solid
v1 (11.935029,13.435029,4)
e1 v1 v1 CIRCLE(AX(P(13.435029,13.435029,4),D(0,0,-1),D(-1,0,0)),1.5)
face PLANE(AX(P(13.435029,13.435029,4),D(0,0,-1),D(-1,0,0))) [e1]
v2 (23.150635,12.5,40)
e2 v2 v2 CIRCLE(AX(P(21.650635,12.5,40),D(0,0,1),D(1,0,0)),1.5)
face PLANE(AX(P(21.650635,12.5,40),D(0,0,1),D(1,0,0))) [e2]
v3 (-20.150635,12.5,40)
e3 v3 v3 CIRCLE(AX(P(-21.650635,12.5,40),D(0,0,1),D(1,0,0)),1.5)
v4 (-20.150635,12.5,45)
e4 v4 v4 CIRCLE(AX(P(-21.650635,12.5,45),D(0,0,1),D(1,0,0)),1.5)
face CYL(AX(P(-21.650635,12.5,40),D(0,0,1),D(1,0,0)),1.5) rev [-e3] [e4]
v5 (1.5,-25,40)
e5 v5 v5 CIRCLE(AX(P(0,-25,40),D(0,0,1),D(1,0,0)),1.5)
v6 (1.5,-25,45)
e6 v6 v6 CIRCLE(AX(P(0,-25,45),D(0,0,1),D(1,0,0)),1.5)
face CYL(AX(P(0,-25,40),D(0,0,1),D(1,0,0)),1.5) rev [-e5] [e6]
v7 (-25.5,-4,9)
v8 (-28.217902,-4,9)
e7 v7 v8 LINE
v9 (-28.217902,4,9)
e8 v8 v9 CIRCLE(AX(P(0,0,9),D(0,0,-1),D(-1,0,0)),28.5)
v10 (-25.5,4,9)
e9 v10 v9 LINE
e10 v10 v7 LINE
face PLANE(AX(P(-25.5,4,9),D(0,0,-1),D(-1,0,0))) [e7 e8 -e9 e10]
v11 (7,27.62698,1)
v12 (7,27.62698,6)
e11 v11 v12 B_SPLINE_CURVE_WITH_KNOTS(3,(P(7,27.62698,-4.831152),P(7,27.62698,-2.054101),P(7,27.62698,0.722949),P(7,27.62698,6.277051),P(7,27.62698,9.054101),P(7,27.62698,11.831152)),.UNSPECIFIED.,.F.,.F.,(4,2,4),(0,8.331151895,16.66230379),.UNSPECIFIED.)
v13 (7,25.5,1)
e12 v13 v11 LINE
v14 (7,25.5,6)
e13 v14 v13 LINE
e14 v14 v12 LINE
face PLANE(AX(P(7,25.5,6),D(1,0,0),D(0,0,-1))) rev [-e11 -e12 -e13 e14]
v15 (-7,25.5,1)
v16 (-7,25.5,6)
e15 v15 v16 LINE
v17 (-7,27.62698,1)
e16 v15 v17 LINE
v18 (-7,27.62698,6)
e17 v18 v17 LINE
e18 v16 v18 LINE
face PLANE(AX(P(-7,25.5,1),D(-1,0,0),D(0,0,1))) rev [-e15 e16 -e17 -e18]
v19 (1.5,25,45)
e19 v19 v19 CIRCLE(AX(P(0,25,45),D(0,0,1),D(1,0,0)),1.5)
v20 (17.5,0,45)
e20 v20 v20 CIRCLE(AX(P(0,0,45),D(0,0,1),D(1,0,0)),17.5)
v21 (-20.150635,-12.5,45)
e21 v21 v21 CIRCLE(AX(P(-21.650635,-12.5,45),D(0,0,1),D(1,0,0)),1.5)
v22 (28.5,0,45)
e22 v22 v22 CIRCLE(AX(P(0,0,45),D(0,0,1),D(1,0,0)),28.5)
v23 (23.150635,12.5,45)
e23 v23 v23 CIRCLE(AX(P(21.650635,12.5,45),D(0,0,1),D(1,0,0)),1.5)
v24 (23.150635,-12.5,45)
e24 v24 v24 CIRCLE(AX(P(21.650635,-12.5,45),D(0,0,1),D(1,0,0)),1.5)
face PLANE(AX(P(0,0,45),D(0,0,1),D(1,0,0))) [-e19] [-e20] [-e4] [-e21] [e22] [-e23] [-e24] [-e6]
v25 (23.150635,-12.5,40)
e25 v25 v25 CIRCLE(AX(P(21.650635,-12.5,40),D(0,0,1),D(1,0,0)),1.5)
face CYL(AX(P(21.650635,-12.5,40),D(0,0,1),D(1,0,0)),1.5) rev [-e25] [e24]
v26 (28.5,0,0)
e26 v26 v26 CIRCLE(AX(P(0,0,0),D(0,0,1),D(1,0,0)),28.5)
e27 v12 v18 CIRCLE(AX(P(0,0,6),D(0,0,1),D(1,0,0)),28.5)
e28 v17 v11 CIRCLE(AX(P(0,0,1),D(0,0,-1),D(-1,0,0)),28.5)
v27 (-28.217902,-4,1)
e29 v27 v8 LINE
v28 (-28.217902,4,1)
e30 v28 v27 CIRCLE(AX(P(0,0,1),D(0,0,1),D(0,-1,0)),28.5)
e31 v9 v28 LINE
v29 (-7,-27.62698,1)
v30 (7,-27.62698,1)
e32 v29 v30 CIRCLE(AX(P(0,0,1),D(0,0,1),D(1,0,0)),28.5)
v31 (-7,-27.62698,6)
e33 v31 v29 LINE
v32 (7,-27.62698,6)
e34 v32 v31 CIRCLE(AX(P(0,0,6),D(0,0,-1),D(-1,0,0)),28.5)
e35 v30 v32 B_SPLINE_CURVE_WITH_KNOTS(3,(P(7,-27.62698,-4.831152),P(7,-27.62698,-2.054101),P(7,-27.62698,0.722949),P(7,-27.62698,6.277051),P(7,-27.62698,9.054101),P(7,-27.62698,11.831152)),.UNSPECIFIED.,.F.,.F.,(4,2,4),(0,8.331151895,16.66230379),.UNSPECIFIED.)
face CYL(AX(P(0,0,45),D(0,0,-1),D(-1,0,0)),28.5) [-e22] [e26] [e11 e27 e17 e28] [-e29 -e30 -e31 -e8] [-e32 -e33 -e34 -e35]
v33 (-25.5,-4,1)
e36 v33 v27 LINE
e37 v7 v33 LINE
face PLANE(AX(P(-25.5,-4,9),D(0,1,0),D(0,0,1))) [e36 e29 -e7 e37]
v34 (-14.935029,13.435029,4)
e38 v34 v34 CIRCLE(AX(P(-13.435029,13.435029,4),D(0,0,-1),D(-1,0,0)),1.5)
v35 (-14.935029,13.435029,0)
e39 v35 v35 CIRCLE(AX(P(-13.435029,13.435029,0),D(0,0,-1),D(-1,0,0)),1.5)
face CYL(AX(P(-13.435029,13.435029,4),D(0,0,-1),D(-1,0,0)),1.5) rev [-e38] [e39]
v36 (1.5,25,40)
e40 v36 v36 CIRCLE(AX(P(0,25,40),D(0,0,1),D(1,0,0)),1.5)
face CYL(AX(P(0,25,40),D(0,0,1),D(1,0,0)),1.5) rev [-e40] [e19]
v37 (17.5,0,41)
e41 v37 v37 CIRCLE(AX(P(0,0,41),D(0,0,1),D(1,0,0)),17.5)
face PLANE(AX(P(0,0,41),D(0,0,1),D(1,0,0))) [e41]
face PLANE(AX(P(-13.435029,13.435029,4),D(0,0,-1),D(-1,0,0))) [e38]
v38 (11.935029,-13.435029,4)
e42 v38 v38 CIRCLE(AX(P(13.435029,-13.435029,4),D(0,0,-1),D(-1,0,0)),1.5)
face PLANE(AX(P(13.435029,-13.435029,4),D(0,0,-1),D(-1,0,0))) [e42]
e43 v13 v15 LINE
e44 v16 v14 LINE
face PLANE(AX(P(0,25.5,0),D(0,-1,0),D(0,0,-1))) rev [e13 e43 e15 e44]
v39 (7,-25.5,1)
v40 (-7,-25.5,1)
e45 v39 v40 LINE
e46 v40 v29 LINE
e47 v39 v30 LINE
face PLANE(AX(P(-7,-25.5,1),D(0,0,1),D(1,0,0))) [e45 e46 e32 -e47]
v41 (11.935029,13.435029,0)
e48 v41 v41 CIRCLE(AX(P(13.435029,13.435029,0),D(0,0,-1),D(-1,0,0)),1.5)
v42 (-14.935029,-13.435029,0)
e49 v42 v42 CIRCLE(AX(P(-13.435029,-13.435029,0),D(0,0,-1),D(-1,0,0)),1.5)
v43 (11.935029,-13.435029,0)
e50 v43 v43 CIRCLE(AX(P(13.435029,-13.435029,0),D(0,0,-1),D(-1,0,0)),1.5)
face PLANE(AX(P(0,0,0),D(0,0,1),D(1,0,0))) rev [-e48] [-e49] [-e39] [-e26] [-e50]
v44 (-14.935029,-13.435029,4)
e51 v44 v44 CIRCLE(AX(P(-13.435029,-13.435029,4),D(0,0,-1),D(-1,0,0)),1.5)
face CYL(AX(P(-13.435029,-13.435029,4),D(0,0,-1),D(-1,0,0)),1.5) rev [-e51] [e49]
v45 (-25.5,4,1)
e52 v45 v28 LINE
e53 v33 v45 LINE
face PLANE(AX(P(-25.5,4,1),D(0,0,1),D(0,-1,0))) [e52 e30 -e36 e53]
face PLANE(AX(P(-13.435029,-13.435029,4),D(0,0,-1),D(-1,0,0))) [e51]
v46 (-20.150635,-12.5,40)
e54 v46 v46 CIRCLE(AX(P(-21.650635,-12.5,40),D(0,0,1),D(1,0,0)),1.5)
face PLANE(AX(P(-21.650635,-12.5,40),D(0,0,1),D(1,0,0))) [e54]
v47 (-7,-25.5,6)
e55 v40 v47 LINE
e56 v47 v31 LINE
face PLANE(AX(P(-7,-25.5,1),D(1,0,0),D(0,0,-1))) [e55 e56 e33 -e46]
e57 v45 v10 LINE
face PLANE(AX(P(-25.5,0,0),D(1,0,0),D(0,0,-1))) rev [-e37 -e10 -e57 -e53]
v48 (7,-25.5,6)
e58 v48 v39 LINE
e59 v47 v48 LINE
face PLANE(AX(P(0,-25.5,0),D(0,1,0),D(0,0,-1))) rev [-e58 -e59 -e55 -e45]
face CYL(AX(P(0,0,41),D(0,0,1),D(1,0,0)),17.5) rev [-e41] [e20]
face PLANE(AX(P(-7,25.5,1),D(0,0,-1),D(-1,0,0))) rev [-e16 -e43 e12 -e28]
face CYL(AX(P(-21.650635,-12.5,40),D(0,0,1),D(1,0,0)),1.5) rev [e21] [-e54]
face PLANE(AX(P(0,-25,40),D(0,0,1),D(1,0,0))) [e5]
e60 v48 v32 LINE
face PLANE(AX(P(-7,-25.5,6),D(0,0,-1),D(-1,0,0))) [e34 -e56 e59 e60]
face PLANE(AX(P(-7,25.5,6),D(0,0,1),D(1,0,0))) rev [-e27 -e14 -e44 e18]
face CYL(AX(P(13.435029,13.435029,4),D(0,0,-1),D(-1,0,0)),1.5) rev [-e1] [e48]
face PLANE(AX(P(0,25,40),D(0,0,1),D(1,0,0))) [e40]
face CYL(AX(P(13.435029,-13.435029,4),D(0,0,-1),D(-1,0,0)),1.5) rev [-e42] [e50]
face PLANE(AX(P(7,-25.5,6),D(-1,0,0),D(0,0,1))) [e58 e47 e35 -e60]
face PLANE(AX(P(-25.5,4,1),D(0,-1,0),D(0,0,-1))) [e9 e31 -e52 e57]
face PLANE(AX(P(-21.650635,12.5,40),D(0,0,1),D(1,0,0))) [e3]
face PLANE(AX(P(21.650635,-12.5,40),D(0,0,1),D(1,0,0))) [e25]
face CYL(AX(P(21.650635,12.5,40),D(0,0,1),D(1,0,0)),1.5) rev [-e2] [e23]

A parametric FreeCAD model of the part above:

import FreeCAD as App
import Part
import Sketcher

V = App.Vector


def add_polygon(sketch, points):
    """Adds a closed chain of lines whose ends are joined by coincident constraints."""
    first, n = sketch.GeometryCount, len(points)
    for a, b in zip(points, points[1:] + points[:1]):
        sketch.addGeometry(Part.LineSegment(App.Vector(*a, 0), App.Vector(*b, 0)), False)
    for i in range(n):
        sketch.addConstraint(Sketcher.Constraint("Coincident", first + i, 2, first + (i + 1) % n, 1))

doc = App.newDocument("Part")
body = doc.addObject("PartDesign::Body", "Body")

# Sketch on XY plane
sketch1 = body.newObject("Sketcher::SketchObject", "Sketch")
sketch1.AttachmentSupport = (doc.getObject("XY_Plane"), [""])
sketch1.MapMode = "FlatFace"
sketch1.addGeometry(Part.Circle(V(0, 0, 0), V(0, 0, 1), 28), False)
sketch1.addConstraint([
    Sketcher.Constraint("Coincident", 0, 3, -1, 1),
    Sketcher.Constraint("Diameter", 0, 57.0),
])
pad1 = body.newObject("PartDesign::Pad", "Pad")
pad1.Profile = sketch1
pad1.Length = 45

# Sketch on XY plane
sketch2 = body.newObject("Sketcher::SketchObject", "Sketch001")
sketch2.AttachmentSupport = (doc.getObject("XY_Plane"), [""])
sketch2.MapMode = "FlatFace"
sketch2.AttachmentOffset = App.Placement(V(0, 0, 45), App.Rotation())
sketch2.addGeometry(Part.Circle(V(0, 0, 0), V(0, 0, 1), 18), False)
sketch2.addConstraint([
    Sketcher.Constraint("Coincident", 0, 3, -1, 1),
    Sketcher.Constraint("Diameter", 0, 35.0),
])
pocket1 = body.newObject("PartDesign::Pocket", "Pocket")
pocket1.Profile = sketch2
pocket1.Length = 4

# Sketch on XY plane
sketch3 = body.newObject("Sketcher::SketchObject", "Sketch002")
sketch3.AttachmentSupport = (doc.getObject("XY_Plane"), [""])
sketch3.MapMode = "FlatFace"
sketch3.AttachmentOffset = App.Placement(V(0, 0, 45), App.Rotation())
sketch3.addGeometry([
    Part.Circle(V(0, 25, 0), V(0, 0, 1), 1.5),  # 0
    Part.Circle(V(21.7, 12.5, 0), V(0, 0, 1), 1.5),  # 1
    Part.Circle(V(21.7, -12.5, 0), V(0, 0, 1), 1.5),  # 2
    Part.Circle(V(0, -25, 0), V(0, 0, 1), 1.5),  # 3
    Part.Circle(V(-21.7, -12.5, 0), V(0, 0, 1), 1.5),  # 4
    Part.Circle(V(-21.7, 12.5, 0), V(0, 0, 1), 1.5),  # 5
], False)
sketch3.addConstraint([
    Sketcher.Constraint("Equal", 0, 1),
    Sketcher.Constraint("Equal", 1, 2),
    Sketcher.Constraint("Equal", 2, 3),
    Sketcher.Constraint("Equal", 3, 4),
    Sketcher.Constraint("Equal", 4, 5),
    Sketcher.Constraint("Symmetric", 0, 3, 3, 3, -1, 1),
    Sketcher.Constraint("Symmetric", 1, 3, 4, 3, -1, 1),
    Sketcher.Constraint("Symmetric", 2, 3, 5, 3, -1, 1),
    Sketcher.Constraint("Symmetric", 2, 3, 4, 3, -2),
    Sketcher.Constraint("PointOnObject", 0, 3, -2),
    Sketcher.Constraint("Diameter", 0, 3.0),
    Sketcher.Constraint("DistanceY", -1, 1, 0, 3, 25.0),
    Sketcher.Constraint("DistanceY", 2, 3, 1, 3, 25.0),
    Sketcher.Constraint("DistanceX", 4, 3, 2, 3, 43.30127),
])
pocket2 = body.newObject("PartDesign::Pocket", "Pocket001")
pocket2.Profile = sketch3
pocket2.Length = 5

# Sketch on XY plane
sketch4 = body.newObject("Sketcher::SketchObject", "Sketch003")
sketch4.AttachmentSupport = (doc.getObject("XY_Plane"), [""])
sketch4.MapMode = "FlatFace"
sketch4.addGeometry([
    Part.Circle(V(-13.4, 13.4, 0), V(0, 0, 1), 1.5),
    Part.Circle(V(13.4, 13.4, 0), V(0, 0, 1), 1.5),
    Part.Circle(V(-13.4, -13.4, 0), V(0, 0, 1), 1.5),
    Part.Circle(V(13.4, -13.4, 0), V(0, 0, 1), 1.5),
], False)
sketch4.addConstraint([
    Sketcher.Constraint("Equal", 0, 1),
    Sketcher.Constraint("Equal", 1, 2),
    Sketcher.Constraint("Equal", 2, 3),
    Sketcher.Constraint("Symmetric", 1, 3, 2, 3, -1, 1),
    Sketcher.Constraint("Symmetric", 0, 3, 3, 3, -1, 1),
    Sketcher.Constraint("Symmetric", 0, 3, 1, 3, -2),
    Sketcher.Constraint("Diameter", 0, 3.0),
    Sketcher.Constraint("DistanceX", 0, 3, -1, 1, 13.435029),
    Sketcher.Constraint("DistanceY", -1, 1, 0, 3, 13.435029),
])
pocket3 = body.newObject("PartDesign::Pocket", "Pocket002")
pocket3.Profile = sketch4
pocket3.Length = 4
pocket3.Reversed = True

# Sketch on XZ plane
sketch5 = body.newObject("Sketcher::SketchObject", "Sketch004")
sketch5.AttachmentSupport = (doc.getObject("XZ_Plane"), [""])
sketch5.MapMode = "FlatFace"
sketch5.AttachmentOffset = App.Placement(V(0, 0, -28.5), App.Rotation())
add_polygon(sketch5, [(-7, 1), (-7, 6), (7, 6), (7, 1)])  # lines 0-3
sketch5.addConstraint([
    Sketcher.Constraint("Vertical", 0),
    Sketcher.Constraint("Horizontal", 1),
    Sketcher.Constraint("Vertical", 2),
    Sketcher.Constraint("Horizontal", 3),
    Sketcher.Constraint("DistanceX", 1, 1, 1, 2, 14.0),
    Sketcher.Constraint("DistanceY", 0, 1, 0, 2, 5.0),
    Sketcher.Constraint("DistanceX", 0, 2, -1, 1, 7.0),
    Sketcher.Constraint("DistanceY", -1, 1, 0, 2, 6.0),
])
pocket4 = body.newObject("PartDesign::Pocket", "Pocket003")
pocket4.Profile = sketch5
pocket4.Length = 3
pocket4.Reversed = True
doc.recompute()

mirrored = body.newObject("PartDesign::Mirrored", "Mirrored")
mirrored.Originals = [pocket4]
mirrored.MirrorPlane = (doc.getObject("XZ_Plane"), [""])
body.Tip = mirrored

# Sketch on YZ plane
sketch6 = body.newObject("Sketcher::SketchObject", "Sketch005")
sketch6.AttachmentSupport = (doc.getObject("YZ_Plane"), [""])
sketch6.MapMode = "FlatFace"
sketch6.AttachmentOffset = App.Placement(V(0, 0, -28.5), App.Rotation())
add_polygon(sketch6, [(4, 9), (-4, 9), (-4, 1), (4, 1)])  # lines 0-3
sketch6.addConstraint([
    Sketcher.Constraint("Horizontal", 0),
    Sketcher.Constraint("Vertical", 1),
    Sketcher.Constraint("Horizontal", 2),
    Sketcher.Constraint("Vertical", 3),
    Sketcher.Constraint("Equal", 2, 1),
    Sketcher.Constraint("DistanceX", 0, 2, 0, 1, 8.0),
    Sketcher.Constraint("DistanceX", 0, 2, -1, 1, 4.0),
    Sketcher.Constraint("DistanceY", -1, 1, 0, 2, 9.0),
])
pocket5 = body.newObject("PartDesign::Pocket", "Pocket004")
pocket5.Profile = sketch6
pocket5.Length = 3
pocket5.Reversed = True

doc.recompute()
